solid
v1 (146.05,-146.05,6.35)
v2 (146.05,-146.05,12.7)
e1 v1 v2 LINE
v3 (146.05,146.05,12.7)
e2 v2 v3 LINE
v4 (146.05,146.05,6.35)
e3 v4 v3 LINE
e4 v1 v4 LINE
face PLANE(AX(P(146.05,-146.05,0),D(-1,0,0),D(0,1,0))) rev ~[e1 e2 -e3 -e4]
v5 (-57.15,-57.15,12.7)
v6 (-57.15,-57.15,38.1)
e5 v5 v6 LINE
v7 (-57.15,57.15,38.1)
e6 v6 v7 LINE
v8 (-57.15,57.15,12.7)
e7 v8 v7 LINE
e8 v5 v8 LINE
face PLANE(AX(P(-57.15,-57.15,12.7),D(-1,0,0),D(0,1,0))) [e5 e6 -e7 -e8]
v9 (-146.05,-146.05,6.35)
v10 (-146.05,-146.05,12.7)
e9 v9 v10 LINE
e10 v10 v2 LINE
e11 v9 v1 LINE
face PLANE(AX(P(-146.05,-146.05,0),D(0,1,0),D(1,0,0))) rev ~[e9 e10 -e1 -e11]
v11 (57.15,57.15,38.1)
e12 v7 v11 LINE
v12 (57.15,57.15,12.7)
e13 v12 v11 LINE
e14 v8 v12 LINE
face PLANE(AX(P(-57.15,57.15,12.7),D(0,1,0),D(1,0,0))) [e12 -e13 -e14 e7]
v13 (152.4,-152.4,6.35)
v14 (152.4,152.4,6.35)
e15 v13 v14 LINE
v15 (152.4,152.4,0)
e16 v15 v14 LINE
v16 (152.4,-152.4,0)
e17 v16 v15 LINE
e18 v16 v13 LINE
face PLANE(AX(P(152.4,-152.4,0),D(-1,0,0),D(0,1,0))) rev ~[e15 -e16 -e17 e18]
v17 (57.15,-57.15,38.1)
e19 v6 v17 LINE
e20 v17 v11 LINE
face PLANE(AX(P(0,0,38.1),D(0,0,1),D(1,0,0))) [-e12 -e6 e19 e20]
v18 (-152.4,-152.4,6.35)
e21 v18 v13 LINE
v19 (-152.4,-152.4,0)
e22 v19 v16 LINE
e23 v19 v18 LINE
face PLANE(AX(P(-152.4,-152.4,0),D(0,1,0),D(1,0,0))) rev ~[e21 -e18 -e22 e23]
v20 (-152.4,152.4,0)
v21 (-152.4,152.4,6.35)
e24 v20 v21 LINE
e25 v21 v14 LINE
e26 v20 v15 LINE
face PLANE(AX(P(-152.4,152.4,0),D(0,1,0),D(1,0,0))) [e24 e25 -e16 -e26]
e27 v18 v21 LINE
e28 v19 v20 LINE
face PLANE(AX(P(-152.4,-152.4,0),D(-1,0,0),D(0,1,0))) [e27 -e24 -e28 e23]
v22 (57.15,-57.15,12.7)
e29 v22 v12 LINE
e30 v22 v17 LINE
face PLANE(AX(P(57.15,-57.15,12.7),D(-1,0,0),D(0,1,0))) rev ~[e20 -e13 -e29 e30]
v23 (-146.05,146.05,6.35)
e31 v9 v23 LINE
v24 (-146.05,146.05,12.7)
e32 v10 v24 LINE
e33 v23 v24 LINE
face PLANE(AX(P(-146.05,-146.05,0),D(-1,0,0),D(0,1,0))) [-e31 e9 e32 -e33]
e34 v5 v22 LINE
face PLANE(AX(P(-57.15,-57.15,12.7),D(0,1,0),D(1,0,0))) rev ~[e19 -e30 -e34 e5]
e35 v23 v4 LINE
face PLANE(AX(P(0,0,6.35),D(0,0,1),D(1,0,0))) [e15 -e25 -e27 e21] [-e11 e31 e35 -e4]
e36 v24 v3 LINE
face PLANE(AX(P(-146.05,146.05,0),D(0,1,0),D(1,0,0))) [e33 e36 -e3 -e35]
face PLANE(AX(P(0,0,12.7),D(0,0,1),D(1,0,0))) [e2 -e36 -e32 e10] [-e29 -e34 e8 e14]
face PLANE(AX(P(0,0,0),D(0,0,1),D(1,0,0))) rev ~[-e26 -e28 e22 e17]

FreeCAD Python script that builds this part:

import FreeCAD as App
import Part
import Sketcher
from FreeCAD import Vector
Q = App.Units.Quantity


def add_polygon(sketch, points):
    """Adds a closed chain of lines whose ends are joined by coincident constraints."""
    first, n = sketch.GeometryCount, len(points)
    for a, b in zip(points, points[1:] + points[:1]):
        sketch.addGeometry(Part.LineSegment(App.Vector(*a, 0), App.Vector(*b, 0)), False)
    for i in range(n):
        sketch.addConstraint(Sketcher.Constraint("Coincident", first + i, 2, first + (i + 1) % n, 1))

doc = App.newDocument("Part")
body = doc.addObject("PartDesign::Body", "Body")

# Sketch on XY plane
sketch1 = body.newObject("Sketcher::SketchObject", "Sketch")
sketch1.AttachmentSupport = (doc.getObject("XY_Plane"), [""])
sketch1.MapMode = "FlatFace"
add_polygon(sketch1, [(-152.4, 152.4), (-152.4, -152.4), (152.4, -152.4), (152.4, 152.4)])  # lines 0-3
add_polygon(sketch1, [(146.05, -146.05), (-146.05, -146.05), (-146.05, 146.05), (146.05, 146.05)])  # lines 4-7
sketch1.addConstraint([
    Sketcher.Constraint("Vertical", 0),
    Sketcher.Constraint("Horizontal", 1),
    Sketcher.Constraint("Vertical", 2),
    Sketcher.Constraint("Horizontal", 3),
    Sketcher.Constraint("Horizontal", 4),
    Sketcher.Constraint("Vertical", 5),
    Sketcher.Constraint("Horizontal", 6),
    Sketcher.Constraint("Vertical", 7),
    Sketcher.Constraint("Symmetric", 0, 2, 2, 2, -1, 1),
    Sketcher.Constraint("Symmetric", 4, 2, 6, 2, -1, 1),
    Sketcher.Constraint("Equal", 3, 0),
    Sketcher.Constraint("Equal", 6, 5),
    Sketcher.Constraint("DistanceX", 1, 1, 1, 2, Q("12 in")),
    Sketcher.Constraint("DistanceX", 4, 2, 4, 1, Q("11.5 in")),
])
pad1 = body.newObject("PartDesign::Pad", "Pad")
pad1.Profile = sketch1
pad1.Length = Q("0.25 in")

# Sketch on XY plane
sketch2 = body.newObject("Sketcher::SketchObject", "Sketch001")
sketch2.AttachmentSupport = (doc.getObject("XY_Plane"), [""])
sketch2.MapMode = "FlatFace"
add_polygon(sketch2, [(-146.05, 146.05), (-146.05, -146.05), (146.05, -146.05), (146.05, 146.05)])  # lines 0-3
sketch2.addConstraint([
    Sketcher.Constraint("Vertical", 0),
    Sketcher.Constraint("Horizontal", 1),
    Sketcher.Constraint("Vertical", 2),
    Sketcher.Constraint("Horizontal", 3),
    Sketcher.Constraint("Symmetric", 0, 2, 2, 2, -1, 1),
    Sketcher.Constraint("Equal", 3, 0),
    Sketcher.Constraint("DistanceX", 1, 1, 1, 2, Q("11.5 in")),
])
pad2 = body.newObject("PartDesign::Pad", "Pad001")
pad2.Profile = sketch2
pad2.Length = Q("0.5 in")

# Sketch on XY plane
sketch3 = body.newObject("Sketcher::SketchObject", "Sketch002")
sketch3.AttachmentSupport = (doc.getObject("XY_Plane"), [""])
sketch3.MapMode = "FlatFace"
sketch3.AttachmentOffset = App.Placement(Vector(0, 0, 0.5 * 25.4), App.Rotation())
add_polygon(sketch3, [(-57.15, 57.15), (-57.15, -57.15), (57.15, -57.15), (57.15, 57.15)])  # lines 0-3
sketch3.addConstraint([
    Sketcher.Constraint("Vertical", 0),
    Sketcher.Constraint("Horizontal", 1),
    Sketcher.Constraint("Vertical", 2),
    Sketcher.Constraint("Horizontal", 3),
    Sketcher.Constraint("Symmetric", 0, 2, 2, 2, -1, 1),
    Sketcher.Constraint("Equal", 3, 0),
    Sketcher.Constraint("DistanceX", 1, 1, 1, 2, Q("4.5 in")),
])
pad3 = body.newObject("PartDesign::Pad", "Pad002")
pad3.Profile = sketch3
pad3.Length = Q("1 in")

doc.recompute()
